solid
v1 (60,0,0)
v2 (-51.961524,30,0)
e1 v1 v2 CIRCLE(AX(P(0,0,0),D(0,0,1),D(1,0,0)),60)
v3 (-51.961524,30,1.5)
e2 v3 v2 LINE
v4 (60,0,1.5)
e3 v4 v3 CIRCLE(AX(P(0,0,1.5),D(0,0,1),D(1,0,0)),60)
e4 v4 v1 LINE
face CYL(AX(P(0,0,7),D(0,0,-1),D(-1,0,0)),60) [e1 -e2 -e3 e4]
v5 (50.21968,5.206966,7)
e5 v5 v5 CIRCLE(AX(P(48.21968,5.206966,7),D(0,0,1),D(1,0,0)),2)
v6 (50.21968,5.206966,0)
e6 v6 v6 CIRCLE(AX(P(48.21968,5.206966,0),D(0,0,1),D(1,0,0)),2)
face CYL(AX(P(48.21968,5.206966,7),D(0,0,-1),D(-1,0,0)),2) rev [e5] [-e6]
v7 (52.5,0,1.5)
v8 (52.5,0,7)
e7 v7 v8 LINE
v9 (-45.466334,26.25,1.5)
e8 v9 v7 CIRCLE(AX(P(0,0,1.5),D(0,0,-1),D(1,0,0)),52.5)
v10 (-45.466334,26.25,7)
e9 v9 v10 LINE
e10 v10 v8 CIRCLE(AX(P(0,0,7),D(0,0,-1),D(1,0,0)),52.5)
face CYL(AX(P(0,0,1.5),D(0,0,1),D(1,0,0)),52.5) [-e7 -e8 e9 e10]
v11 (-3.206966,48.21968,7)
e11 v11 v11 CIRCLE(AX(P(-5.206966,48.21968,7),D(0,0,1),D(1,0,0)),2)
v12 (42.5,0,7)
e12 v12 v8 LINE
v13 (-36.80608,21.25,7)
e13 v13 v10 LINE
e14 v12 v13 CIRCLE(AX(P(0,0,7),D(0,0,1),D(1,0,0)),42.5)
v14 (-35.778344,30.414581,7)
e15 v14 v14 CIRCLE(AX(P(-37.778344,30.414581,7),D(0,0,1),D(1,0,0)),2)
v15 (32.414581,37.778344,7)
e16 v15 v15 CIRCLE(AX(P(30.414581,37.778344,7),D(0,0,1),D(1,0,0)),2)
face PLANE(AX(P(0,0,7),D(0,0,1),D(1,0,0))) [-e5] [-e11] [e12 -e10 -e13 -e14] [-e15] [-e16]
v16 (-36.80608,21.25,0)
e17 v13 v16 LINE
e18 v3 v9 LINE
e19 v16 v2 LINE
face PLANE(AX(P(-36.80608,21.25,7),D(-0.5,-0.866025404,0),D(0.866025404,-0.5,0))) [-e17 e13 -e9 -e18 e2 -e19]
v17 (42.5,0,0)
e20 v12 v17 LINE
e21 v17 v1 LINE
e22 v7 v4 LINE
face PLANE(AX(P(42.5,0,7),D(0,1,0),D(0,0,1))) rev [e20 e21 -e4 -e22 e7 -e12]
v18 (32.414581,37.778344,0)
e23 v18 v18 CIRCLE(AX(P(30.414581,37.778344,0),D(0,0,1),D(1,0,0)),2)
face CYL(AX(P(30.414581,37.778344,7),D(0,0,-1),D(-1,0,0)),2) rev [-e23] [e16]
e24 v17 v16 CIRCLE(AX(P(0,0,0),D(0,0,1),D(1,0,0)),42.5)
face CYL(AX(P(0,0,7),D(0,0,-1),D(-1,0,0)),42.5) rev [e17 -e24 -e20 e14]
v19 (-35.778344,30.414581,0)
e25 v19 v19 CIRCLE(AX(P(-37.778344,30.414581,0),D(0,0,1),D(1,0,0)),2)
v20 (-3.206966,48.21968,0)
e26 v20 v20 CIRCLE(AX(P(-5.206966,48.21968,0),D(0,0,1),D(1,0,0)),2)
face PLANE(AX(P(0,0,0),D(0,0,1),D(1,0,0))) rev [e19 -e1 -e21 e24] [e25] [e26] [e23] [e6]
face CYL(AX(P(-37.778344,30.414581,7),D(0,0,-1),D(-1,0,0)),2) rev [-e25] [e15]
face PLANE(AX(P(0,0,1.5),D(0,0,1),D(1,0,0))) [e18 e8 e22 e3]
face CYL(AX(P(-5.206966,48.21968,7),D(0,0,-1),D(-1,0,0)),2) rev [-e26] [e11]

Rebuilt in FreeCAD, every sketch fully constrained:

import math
import FreeCAD as App
import Part
import Sketcher
from FreeCAD import Vector
Q = App.Units.Quantity

doc = App.newDocument("Part")
body = doc.addObject("PartDesign::Body", "Body")

sketch1 = doc.addObject("Sketcher::SketchObject", "Sketch")
body.addObject(sketch1)
sketch1.AttachmentSupport = (doc.XY_Plane, [""])
sketch1.MapMode = "FlatFace"
sketch1.addGeometry(Part.LineSegment(Vector(42.5, 0, 0), Vector(60, 0, 0)), False)
sketch1.addGeometry(Part.ArcOfCircle(Part.Circle(Vector(0, 0, 0), Vector(0, 0, 1), 60), math.radians(0), math.radians(150)), False)
sketch1.addGeometry(Part.LineSegment(Vector(-52, 30, 0), Vector(-36.8, 21.2, 0)), False)
sketch1.addGeometry(Part.ArcOfCircle(Part.Circle(Vector(0, 0, 0), Vector(0, 0, 1), 42.5), math.radians(0), math.radians(150)), False)
sketch1.addGeometry(Part.Circle(Vector(48.2, 5.2, 0), Vector(0, 0, 1), 2), False)
sketch1.addGeometry(Part.Circle(Vector(-37.8, 30.4, 0), Vector(0, 0, 1), 2), False)
sketch1.addGeometry(Part.Circle(Vector(-5.2, 48.2, 0), Vector(0, 0, 1), 2), False)
sketch1.addGeometry(Part.Circle(Vector(30.4, 37.8, 0), Vector(0, 0, 1), 2), False)
sketch1.addConstraint(Sketcher.Constraint("Coincident", 0, 2, 1, 1))
sketch1.addConstraint(Sketcher.Constraint("Coincident", 1, 2, 2, 1))
sketch1.addConstraint(Sketcher.Constraint("Coincident", 2, 2, 3, 2))
sketch1.addConstraint(Sketcher.Constraint("Coincident", 3, 1, 0, 1))
sketch1.addConstraint(Sketcher.Constraint("Horizontal", 0))
sketch1.addConstraint(Sketcher.Constraint("Coincident", 1, 3, -1, 1))
sketch1.addConstraint(Sketcher.Constraint("Coincident", 3, 3, -1, 1))
sketch1.addConstraint(Sketcher.Constraint("Equal", 4, 5))
sketch1.addConstraint(Sketcher.Constraint("Equal", 5, 6))
sketch1.addConstraint(Sketcher.Constraint("Equal", 6, 7))
sketch1.addConstraint(Sketcher.Constraint("PointOnObject", 0, 2, -1))
sketch1.addConstraint(Sketcher.Constraint("Diameter", 4, Q("4 mm")))
sketch1.addConstraint(Sketcher.Constraint("Radius", 1, Q("60 mm")))
sketch1.addConstraint(Sketcher.Constraint("Radius", 3, Q("42.5 mm")))
sketch1.addConstraint(Sketcher.Constraint("Angle", 2, Q("-30 deg")))
sketch1.addConstraint(Sketcher.Constraint("DistanceY", -1, 1, 1, 2, Q("30 mm")))
sketch1.addConstraint(Sketcher.Constraint("DistanceY", 5, 3, 6, 3, Q("17.805098 mm")))
sketch1.addConstraint(Sketcher.Constraint("DistanceX", 7, 3, 4, 3, Q("17.805098 mm")))
sketch1.addConstraint(Sketcher.Constraint("DistanceX", -1, 1, 4, 3, Q("48.21968 mm")))
sketch1.addConstraint(Sketcher.Constraint("DistanceY", -1, 1, 5, 3, Q("30.414581 mm")))
sketch1.addConstraint(Sketcher.Constraint("DistanceX", 1, 2, 5, 3, Q("14.183181 mm")))
sketch1.addConstraint(Sketcher.Constraint("DistanceY", -1, 1, 4, 3, Q("5.206966 mm")))
sketch1.addConstraint(Sketcher.Constraint("DistanceX", 6, 3, -1, 1, Q("5.206966 mm")))
sketch1.addConstraint(Sketcher.Constraint("DistanceY", -1, 1, 7, 3, Q("37.778344 mm")))
pad1 = doc.addObject("PartDesign::Pad", "Pad")
body.addObject(pad1)
pad1.Profile = sketch1
pad1.Length = 7

sketch2 = doc.addObject("Sketcher::SketchObject", "Sketch001")
body.addObject(sketch2)
sketch2.AttachmentSupport = (doc.XY_Plane, [""])
sketch2.MapMode = "FlatFace"
sketch2.AttachmentOffset = App.Placement(Vector(0, 0, 1.5), App.Rotation())
sketch2.addGeometry(Part.LineSegment(Vector(52, 0, 0), Vector(60, 0, 0)), False)
sketch2.addGeometry(Part.ArcOfCircle(Part.Circle(Vector(0, 0, 0), Vector(0, 0, 1), 60), math.radians(0), math.radians(150)), False)
sketch2.addGeometry(Part.LineSegment(Vector(-52, 30, 0), Vector(-45, 26, 0)), False)
sketch2.addGeometry(Part.ArcOfCircle(Part.Circle(Vector(0, 0, 0), Vector(0, 0, 1), 52), math.radians(0), math.radians(150)), False)
sketch2.addConstraint(Sketcher.Constraint("Coincident", 0, 2, 1, 1))
sketch2.addConstraint(Sketcher.Constraint("Coincident", 1, 2, 2, 1))
sketch2.addConstraint(Sketcher.Constraint("Coincident", 2, 2, 3, 2))
sketch2.addConstraint(Sketcher.Constraint("Coincident", 3, 1, 0, 1))
sketch2.addConstraint(Sketcher.Constraint("Horizontal", 0))
sketch2.addConstraint(Sketcher.Constraint("Coincident", 1, 3, -1, 1))
sketch2.addConstraint(Sketcher.Constraint("Coincident", 3, 3, -1, 1))
sketch2.addConstraint(Sketcher.Constraint("PointOnObject", 0, 2, -1))
sketch2.addConstraint(Sketcher.Constraint("Radius", 1, Q("60 mm")))
sketch2.addConstraint(Sketcher.Constraint("Radius", 3, Q("52.5 mm")))
sketch2.addConstraint(Sketcher.Constraint("Angle", 2, Q("-30 deg")))
sketch2.addConstraint(Sketcher.Constraint("DistanceY", -1, 1, 1, 2, Q("30 mm")))
pocket1 = doc.addObject("PartDesign::Pocket", "Pocket")
body.addObject(pocket1)
pocket1.Profile = sketch2
pocket1.Length = 5.5
pocket1.Reversed = True

doc.recompute()
